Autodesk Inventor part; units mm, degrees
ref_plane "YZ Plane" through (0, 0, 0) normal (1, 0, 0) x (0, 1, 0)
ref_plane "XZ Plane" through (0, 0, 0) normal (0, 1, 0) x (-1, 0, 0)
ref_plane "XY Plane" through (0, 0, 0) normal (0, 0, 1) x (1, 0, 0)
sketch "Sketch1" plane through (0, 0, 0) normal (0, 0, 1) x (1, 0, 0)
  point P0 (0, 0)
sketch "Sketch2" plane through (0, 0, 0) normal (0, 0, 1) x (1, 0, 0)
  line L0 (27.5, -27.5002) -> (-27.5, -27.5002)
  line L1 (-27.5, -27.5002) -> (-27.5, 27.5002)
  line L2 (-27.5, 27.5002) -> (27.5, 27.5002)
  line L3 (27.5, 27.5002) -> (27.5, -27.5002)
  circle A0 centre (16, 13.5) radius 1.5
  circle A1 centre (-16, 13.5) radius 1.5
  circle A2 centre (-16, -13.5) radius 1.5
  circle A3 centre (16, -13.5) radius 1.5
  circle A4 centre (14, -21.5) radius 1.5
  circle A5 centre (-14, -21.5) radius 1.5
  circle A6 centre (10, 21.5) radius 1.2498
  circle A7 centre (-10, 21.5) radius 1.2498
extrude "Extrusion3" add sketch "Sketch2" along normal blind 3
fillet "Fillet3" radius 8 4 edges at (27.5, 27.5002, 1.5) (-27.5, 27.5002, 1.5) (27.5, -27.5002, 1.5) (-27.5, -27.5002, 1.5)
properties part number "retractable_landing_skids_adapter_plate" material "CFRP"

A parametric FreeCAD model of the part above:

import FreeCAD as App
import Part
import Sketcher

V = App.Vector


def edges_at(feature, points):
    """Names of the edges that pass closest to the given points."""
    edges = feature.Shape.Edges
    near = lambda p: min(range(len(edges)), key=lambda i: edges[i].distToShape(Part.Vertex(*p))[0])
    return sorted({f"Edge{near(p) + 1}" for p in points})

doc = App.newDocument("Part")
body = doc.addObject("PartDesign::Body", "Body")

# Sketch on XY plane
sketch1 = body.newObject("Sketcher::SketchObject", "Sketch")
sketch1.AttachmentSupport = (doc.getObject("XY_Plane"), [""])
sketch1.MapMode = "FlatFace"
sketch1.addGeometry(Part.LineSegment(V(-27.5, -27.5002, 0), V(27.5, -27.5002, 0)), False)
sketch1.addGeometry(Part.LineSegment(V(27.5, -27.5002, 0), V(27.5, 27.5002, 0)), False)
sketch1.addGeometry(Part.LineSegment(V(27.5, 27.5002, 0), V(-27.5, 27.5002, 0)), False)
sketch1.addGeometry(Part.LineSegment(V(-27.5, 27.5002, 0), V(-27.5, -27.5002, 0)), False)
sketch1.addGeometry(Part.Circle(V(-14, -21.5, 0), V(0, 0, 1), 1.5), False)
sketch1.addGeometry(Part.Circle(V(-16, -13.5, 0), V(0, 0, 1), 1.5), False)
sketch1.addGeometry(Part.Circle(V(14, -21.5, 0), V(0, 0, 1), 1.5), False)
sketch1.addGeometry(Part.Circle(V(16, -13.5, 0), V(0, 0, 1), 1.5), False)
sketch1.addGeometry(Part.Circle(V(-16, 13.5, 0), V(0, 0, 1), 1.5), False)
sketch1.addGeometry(Part.Circle(V(-10, 21.5, 0), V(0, 0, 1), 1.2498), False)
sketch1.addGeometry(Part.Circle(V(16, 13.5, 0), V(0, 0, 1), 1.5), False)
sketch1.addGeometry(Part.Circle(V(10, 21.5, 0), V(0, 0, 1), 1.2498), False)
sketch1.addConstraint(Sketcher.Constraint("Coincident", 0, 2, 1, 1))
sketch1.addConstraint(Sketcher.Constraint("Coincident", 1, 2, 2, 1))
sketch1.addConstraint(Sketcher.Constraint("Coincident", 2, 2, 3, 1))
sketch1.addConstraint(Sketcher.Constraint("Coincident", 3, 2, 0, 1))
sketch1.addConstraint(Sketcher.Constraint("Horizontal", 0))
sketch1.addConstraint(Sketcher.Constraint("Vertical", 1))
sketch1.addConstraint(Sketcher.Constraint("Horizontal", 2))
sketch1.addConstraint(Sketcher.Constraint("Vertical", 3))
sketch1.addConstraint(Sketcher.Constraint("Equal", 4, 5))
sketch1.addConstraint(Sketcher.Constraint("Equal", 5, 6))
sketch1.addConstraint(Sketcher.Constraint("Equal", 6, 7))
sketch1.addConstraint(Sketcher.Constraint("Equal", 7, 8))
sketch1.addConstraint(Sketcher.Constraint("Equal", 8, 10))
sketch1.addConstraint(Sketcher.Constraint("Equal", 9, 11))
sketch1.addConstraint(Sketcher.Constraint("Symmetric", 7, 3, 8, 3, -1, 1))
sketch1.addConstraint(Sketcher.Constraint("Symmetric", 5, 3, 10, 3, -1, 1))
sketch1.addConstraint(Sketcher.Constraint("Symmetric", 0, 2, 2, 2, -1, 1))
sketch1.addConstraint(Sketcher.Constraint("Symmetric", 4, 3, 6, 3, -2))
sketch1.addConstraint(Sketcher.Constraint("Symmetric", 5, 3, 7, 3, -2))
sketch1.addConstraint(Sketcher.Constraint("Symmetric", 9, 3, 11, 3, -2))
sketch1.addConstraint(Sketcher.Constraint("Diameter", 4, 3.0))
sketch1.addConstraint(Sketcher.Constraint("DistanceX", 0, 1, 0, 2, 55.0))
sketch1.addConstraint(Sketcher.Constraint("DistanceX", 4, 3, -1, 1, 14.0))
sketch1.addConstraint(Sketcher.Constraint("DistanceX", 5, 3, -1, 1, 16.0))
sketch1.addConstraint(Sketcher.Constraint("DistanceX", 9, 3, -1, 1, 10.0))
sketch1.addConstraint(Sketcher.Constraint("DistanceY", 4, 3, 5, 3, 8.0))
sketch1.addConstraint(Sketcher.Constraint("DistanceY", 5, 3, 8, 3, 27.0))
sketch1.addConstraint(Sketcher.Constraint("DistanceY", 8, 3, 9, 3, 8.0))
sketch1.addConstraint(Sketcher.Constraint("Diameter", 9, 2.4996))
sketch1.addConstraint(Sketcher.Constraint("DistanceY", 1, 1, 1, 2, 55.0004))
pad1 = body.newObject("PartDesign::Pad", "Pad")
pad1.Profile = sketch1
pad1.Length = 3
doc.recompute()

fillet = body.newObject("PartDesign::Fillet", "Fillet")
fillet.Base = (pad1, edges_at(pad1, [
    (27.5, 27.5, 1.5),
    (-27.5, 27.5, 1.5),
    (27.5, -27.5, 1.5),
    (-27.5, -27.5, 1.5),
]))
fillet.Radius = 8

doc.recompute()
